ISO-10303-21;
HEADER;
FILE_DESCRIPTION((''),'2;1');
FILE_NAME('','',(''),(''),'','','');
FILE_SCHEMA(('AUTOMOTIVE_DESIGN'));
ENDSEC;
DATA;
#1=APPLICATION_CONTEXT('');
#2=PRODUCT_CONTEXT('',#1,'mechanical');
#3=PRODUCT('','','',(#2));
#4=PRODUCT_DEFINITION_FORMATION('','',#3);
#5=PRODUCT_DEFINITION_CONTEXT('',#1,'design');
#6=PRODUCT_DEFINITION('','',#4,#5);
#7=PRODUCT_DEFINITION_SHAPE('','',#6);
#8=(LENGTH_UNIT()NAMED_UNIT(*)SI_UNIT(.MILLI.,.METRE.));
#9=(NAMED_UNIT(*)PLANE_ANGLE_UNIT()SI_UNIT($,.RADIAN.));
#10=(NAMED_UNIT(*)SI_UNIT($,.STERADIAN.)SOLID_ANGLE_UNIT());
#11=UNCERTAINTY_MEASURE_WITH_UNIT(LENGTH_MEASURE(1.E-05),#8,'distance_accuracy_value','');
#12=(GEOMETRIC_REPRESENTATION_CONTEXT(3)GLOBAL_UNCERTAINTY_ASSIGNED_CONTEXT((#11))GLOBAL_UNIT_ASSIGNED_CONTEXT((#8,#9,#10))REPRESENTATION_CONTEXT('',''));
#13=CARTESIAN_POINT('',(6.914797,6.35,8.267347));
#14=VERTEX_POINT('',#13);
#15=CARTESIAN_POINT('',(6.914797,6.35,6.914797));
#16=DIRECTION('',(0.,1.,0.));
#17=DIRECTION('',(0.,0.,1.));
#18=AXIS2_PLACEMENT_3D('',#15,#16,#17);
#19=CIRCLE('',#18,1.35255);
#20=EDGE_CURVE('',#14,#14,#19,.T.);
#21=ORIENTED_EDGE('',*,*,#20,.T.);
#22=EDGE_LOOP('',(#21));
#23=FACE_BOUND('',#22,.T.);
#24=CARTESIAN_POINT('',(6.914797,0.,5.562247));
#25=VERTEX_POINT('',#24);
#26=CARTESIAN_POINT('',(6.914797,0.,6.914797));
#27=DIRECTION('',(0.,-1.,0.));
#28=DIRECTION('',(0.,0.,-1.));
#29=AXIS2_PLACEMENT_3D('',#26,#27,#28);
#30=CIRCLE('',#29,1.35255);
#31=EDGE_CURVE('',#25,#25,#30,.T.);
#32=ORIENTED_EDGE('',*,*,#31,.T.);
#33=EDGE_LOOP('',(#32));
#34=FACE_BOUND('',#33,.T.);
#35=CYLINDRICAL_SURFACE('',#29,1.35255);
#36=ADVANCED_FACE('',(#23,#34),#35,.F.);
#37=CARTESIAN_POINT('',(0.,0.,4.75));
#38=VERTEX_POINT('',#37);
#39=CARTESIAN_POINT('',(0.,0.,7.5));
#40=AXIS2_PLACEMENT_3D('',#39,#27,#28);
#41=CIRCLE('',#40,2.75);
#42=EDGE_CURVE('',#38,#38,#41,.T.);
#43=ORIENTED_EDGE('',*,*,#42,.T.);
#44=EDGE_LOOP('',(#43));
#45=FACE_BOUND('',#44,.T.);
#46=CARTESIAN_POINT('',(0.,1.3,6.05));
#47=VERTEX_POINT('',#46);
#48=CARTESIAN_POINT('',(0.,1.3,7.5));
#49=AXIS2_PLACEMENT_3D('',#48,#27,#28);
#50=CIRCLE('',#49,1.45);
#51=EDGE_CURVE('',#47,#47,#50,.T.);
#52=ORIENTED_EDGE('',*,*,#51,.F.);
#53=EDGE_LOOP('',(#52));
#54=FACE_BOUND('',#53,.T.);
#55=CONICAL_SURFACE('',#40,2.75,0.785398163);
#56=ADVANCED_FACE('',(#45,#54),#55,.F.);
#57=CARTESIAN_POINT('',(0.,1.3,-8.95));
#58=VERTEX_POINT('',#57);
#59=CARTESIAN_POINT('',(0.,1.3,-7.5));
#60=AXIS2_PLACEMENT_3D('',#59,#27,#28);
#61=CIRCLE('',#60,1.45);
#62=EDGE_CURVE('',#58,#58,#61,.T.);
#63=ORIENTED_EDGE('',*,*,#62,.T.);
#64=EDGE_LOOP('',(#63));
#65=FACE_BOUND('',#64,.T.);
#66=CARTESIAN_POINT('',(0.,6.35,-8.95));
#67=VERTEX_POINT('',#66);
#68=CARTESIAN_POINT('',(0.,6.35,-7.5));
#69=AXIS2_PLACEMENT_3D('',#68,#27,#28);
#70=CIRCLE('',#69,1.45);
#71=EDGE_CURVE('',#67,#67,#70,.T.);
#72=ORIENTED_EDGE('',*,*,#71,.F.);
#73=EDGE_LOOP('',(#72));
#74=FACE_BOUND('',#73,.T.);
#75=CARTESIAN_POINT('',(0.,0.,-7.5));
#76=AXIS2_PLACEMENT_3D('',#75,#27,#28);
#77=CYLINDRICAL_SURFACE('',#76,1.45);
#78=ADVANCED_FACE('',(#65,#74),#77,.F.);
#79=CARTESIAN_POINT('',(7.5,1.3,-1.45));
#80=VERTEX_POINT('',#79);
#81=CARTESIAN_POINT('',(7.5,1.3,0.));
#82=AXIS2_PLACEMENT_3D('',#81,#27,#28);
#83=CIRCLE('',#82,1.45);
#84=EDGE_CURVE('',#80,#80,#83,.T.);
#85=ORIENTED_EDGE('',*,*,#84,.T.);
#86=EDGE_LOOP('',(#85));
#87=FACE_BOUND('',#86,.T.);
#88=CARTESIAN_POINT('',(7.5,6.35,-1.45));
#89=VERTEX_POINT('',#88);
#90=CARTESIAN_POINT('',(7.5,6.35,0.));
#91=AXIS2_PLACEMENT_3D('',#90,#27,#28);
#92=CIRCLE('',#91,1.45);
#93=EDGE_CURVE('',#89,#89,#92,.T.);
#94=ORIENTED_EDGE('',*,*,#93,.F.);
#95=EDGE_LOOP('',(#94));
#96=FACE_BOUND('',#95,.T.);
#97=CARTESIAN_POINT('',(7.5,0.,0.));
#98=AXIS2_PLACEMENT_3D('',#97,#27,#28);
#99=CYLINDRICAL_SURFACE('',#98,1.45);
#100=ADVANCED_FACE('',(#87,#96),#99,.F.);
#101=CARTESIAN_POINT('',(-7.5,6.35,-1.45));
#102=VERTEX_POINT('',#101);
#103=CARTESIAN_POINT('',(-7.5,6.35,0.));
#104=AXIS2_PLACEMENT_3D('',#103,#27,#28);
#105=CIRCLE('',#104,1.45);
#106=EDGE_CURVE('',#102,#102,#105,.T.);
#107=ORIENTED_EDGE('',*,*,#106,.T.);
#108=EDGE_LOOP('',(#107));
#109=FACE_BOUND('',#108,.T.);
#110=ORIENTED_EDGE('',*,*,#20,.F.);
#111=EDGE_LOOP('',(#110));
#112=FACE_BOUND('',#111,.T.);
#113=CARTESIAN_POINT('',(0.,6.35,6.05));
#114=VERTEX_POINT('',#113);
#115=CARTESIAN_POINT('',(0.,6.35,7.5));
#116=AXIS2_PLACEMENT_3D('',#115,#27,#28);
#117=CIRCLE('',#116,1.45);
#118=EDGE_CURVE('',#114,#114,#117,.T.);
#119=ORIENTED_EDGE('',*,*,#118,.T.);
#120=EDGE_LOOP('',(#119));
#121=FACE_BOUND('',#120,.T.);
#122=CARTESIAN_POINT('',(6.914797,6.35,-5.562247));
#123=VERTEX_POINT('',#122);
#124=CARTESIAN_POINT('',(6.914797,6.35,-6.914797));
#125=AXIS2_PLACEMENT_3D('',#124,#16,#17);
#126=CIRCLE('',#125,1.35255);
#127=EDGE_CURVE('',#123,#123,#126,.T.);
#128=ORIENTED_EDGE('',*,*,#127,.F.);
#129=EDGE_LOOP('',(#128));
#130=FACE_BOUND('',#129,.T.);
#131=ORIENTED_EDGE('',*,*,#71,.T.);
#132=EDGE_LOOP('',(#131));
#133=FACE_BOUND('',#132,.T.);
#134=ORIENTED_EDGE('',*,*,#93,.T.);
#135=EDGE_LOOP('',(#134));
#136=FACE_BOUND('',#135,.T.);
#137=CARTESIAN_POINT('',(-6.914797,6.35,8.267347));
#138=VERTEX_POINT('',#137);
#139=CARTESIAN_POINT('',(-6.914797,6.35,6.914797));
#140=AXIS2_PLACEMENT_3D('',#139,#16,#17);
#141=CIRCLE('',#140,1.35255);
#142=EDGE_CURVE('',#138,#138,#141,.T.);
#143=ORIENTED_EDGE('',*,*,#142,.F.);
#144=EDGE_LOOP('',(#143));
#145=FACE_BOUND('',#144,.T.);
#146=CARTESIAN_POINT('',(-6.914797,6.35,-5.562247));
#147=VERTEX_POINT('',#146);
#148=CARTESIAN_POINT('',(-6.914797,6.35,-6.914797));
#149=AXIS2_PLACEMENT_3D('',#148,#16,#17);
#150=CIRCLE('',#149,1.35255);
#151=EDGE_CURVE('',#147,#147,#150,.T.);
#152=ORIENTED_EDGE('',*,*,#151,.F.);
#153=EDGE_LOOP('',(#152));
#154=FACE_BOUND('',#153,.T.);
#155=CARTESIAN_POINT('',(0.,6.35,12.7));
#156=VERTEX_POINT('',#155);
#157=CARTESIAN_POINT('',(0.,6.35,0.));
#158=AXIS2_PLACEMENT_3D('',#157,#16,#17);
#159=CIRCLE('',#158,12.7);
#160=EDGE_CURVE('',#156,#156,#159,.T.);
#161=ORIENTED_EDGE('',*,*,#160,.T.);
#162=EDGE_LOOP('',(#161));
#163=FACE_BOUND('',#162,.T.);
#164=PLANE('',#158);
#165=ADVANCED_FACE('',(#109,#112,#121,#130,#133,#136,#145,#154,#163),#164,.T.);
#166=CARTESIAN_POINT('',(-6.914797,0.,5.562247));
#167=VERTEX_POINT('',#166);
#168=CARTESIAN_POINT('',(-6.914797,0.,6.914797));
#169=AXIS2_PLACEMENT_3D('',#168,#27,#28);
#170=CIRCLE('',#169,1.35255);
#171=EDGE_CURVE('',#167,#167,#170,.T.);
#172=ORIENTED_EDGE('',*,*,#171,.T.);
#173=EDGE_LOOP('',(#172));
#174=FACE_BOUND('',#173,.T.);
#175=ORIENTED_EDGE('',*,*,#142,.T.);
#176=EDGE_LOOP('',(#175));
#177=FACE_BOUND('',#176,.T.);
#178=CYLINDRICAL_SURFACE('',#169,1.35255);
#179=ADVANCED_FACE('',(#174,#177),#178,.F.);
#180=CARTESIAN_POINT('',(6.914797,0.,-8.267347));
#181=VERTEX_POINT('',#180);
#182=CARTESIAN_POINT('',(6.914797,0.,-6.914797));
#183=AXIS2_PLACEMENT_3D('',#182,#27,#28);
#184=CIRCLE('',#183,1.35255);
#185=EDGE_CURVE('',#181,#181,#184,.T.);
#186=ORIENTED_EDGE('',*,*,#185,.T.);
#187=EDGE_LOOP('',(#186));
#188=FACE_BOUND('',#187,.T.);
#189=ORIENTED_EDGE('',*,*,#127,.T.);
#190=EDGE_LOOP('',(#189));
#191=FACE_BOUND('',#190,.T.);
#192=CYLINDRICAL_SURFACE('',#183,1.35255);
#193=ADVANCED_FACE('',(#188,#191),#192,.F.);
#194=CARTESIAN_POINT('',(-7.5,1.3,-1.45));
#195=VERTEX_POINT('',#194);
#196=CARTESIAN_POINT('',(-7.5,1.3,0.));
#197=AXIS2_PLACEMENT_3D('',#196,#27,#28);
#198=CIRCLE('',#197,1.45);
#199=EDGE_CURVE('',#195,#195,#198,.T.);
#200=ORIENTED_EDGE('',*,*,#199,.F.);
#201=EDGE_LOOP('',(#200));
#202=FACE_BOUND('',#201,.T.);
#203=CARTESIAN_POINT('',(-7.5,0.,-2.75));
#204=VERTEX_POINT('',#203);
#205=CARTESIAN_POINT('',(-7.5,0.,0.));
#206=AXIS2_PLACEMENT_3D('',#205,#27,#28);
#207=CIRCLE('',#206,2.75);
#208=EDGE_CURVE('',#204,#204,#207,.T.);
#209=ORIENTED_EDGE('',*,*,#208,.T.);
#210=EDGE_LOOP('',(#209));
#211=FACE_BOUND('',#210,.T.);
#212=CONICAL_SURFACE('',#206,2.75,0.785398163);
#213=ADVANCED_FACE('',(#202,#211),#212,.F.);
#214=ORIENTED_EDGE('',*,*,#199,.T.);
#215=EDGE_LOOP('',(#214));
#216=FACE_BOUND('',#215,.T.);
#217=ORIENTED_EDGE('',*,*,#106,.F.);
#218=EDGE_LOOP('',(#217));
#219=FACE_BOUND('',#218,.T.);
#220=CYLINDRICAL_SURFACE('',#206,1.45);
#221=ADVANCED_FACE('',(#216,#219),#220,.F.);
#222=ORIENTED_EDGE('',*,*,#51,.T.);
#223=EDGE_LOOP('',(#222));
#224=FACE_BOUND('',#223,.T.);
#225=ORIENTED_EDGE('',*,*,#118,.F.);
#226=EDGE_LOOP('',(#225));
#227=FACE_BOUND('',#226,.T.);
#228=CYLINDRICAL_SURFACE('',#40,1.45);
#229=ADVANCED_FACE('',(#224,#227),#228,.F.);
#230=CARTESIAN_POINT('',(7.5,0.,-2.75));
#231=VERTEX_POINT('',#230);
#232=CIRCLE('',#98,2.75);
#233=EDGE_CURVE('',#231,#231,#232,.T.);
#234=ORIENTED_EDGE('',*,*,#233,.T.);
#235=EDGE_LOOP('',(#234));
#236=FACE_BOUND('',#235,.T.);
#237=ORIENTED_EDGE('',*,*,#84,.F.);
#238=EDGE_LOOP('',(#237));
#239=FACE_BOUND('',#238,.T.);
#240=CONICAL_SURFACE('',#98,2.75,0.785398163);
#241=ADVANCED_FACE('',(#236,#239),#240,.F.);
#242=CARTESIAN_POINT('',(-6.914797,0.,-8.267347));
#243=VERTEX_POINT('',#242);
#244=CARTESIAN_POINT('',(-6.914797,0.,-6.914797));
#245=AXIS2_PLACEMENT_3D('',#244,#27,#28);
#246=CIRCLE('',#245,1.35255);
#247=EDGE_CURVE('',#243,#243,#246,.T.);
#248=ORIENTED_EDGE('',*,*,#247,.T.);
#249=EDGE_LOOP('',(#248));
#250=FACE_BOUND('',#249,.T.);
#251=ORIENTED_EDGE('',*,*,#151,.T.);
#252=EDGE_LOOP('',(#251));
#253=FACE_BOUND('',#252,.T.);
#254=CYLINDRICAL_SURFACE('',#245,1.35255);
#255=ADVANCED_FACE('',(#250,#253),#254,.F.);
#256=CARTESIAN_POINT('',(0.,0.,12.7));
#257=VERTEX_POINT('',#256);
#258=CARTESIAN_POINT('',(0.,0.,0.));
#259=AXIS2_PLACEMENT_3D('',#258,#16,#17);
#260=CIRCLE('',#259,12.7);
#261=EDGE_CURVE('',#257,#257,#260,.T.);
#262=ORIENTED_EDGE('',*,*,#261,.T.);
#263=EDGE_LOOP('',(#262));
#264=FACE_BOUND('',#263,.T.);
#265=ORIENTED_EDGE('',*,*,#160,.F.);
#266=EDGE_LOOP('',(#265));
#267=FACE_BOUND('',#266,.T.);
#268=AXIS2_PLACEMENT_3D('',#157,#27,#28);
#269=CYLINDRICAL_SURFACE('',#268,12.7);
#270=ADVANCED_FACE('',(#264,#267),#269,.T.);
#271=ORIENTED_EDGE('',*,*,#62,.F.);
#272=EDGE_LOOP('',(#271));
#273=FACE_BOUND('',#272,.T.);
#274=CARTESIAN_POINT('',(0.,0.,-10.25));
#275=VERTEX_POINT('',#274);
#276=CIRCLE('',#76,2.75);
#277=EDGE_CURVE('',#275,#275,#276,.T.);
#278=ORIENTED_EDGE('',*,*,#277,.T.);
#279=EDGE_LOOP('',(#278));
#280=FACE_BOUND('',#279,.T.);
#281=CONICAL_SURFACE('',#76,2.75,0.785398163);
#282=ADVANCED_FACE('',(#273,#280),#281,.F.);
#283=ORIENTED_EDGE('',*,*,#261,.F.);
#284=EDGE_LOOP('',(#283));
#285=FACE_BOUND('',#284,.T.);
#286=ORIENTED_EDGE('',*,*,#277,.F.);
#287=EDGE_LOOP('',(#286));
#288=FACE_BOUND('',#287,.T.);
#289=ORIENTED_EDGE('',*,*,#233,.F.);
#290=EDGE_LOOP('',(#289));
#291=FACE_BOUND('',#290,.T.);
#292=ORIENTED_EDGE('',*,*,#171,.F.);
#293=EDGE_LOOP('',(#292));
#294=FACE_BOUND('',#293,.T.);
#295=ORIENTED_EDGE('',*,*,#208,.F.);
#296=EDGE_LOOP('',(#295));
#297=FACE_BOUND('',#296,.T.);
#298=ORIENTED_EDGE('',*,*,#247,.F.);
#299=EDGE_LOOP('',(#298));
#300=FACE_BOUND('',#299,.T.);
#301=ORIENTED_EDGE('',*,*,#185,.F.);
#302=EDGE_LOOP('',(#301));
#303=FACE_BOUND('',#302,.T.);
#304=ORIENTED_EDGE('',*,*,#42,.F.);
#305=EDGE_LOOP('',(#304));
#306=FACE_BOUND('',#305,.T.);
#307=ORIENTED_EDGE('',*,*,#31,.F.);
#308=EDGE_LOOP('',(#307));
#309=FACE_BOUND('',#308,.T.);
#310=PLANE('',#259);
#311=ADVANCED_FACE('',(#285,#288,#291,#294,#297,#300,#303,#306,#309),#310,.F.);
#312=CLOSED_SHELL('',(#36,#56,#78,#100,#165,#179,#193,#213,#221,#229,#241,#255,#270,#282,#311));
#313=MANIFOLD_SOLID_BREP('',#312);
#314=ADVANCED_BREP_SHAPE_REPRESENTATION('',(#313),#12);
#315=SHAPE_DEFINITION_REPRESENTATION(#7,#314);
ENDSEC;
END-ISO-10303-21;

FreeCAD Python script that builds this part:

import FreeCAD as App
import Part
import Sketcher

V = App.Vector
Q = App.Units.Quantity

doc = App.newDocument("Part")
params = doc.addObject("Spreadsheet::Sheet", "Params")
for row, (alias, value) in enumerate([
    ("sketch1_diameter", "1 in"),
    ("pad1_length", "0.25 in"),
    ("hole_diameter", "2.9 mm"),
    ("hole_csink_diameter", "5.5 mm"),
    ("hole2_diameter", "0.1065 in"),
    ("hole2_depth", "0.3696 in"),
], start=1):
    params.set(f"A{row}", alias)
    params.set(f"B{row}", "=" + value)
    params.setAlias(f"B{row}", alias)

body = doc.addObject("PartDesign::Body", "Body")

# Sketch on XZ plane
sketch1 = body.newObject("Sketcher::SketchObject", "Sketch")
sketch1.AttachmentSupport = (doc.getObject("XZ_Plane"), [""])
sketch1.MapMode = "FlatFace"
sketch1.addGeometry(Part.Circle(V(0, 0, 0), V(0, 0, 1), 12.7), False)
sketch1.addConstraint([
    Sketcher.Constraint("Coincident", 0, 3, -1, 1),
    Sketcher.Constraint("Diameter", 0, Q("1 in")),
])
sketch1.setExpression("Constraints[1]", "Params.sketch1_diameter")
pad1 = body.newObject("PartDesign::Pad", "Pad")
pad1.Profile = sketch1
pad1.setExpression("Length", "Params.pad1_length")
pad1.Reversed = True

# Sketch on XZ plane
sketch2 = body.newObject("Sketcher::SketchObject", "Sketch001")
sketch2.AttachmentSupport = (doc.getObject("XZ_Plane"), [""])
sketch2.MapMode = "FlatFace"
sketch2.addGeometry([
    Part.Circle(V(-7.5, 0, 0), V(0, 0, 1), 1.45),
    Part.Circle(V(7.5, 0, 0), V(0, 0, 1), 1.45),
    Part.Circle(V(0, 7.5, 0), V(0, 0, 1), 1.45),
    Part.Circle(V(0, -7.5, 0), V(0, 0, 1), 1.45),
], False)
sketch2.addConstraint([
    Sketcher.Constraint("Equal", 0, 1),
    Sketcher.Constraint("Equal", 1, 2),
    Sketcher.Constraint("Equal", 2, 3),
    Sketcher.Constraint("Symmetric", 0, 3, 1, 3, -1, 1),
    Sketcher.Constraint("Symmetric", 2, 3, 3, 3, -1, 1),
    Sketcher.Constraint("PointOnObject", 0, 3, -1),
    Sketcher.Constraint("PointOnObject", 2, 3, -2),
    Sketcher.Constraint("Diameter", 0, Q("2.9 mm")),
    Sketcher.Constraint("DistanceX", 0, 3, -1, 1, Q("7.5 mm")),
    Sketcher.Constraint("DistanceY", -1, 1, 2, 3, Q("7.5 mm")),
])
doc.recompute()
hole = body.newObject("PartDesign::Hole", "Hole")
hole.Profile = sketch2
hole.ThreadType = "None"
hole.setExpression("Diameter", "Params.hole_diameter")
hole.DepthType = "ThroughAll"
hole.HoleCutType = "Countersink"
hole.setExpression("HoleCutDiameter", "Params.hole_csink_diameter")
hole.HoleCutCountersinkAngle = 90

# Sketch on XZ plane
sketch3 = body.newObject("Sketcher::SketchObject", "Sketch002")
sketch3.AttachmentSupport = (doc.getObject("XZ_Plane"), [""])
sketch3.MapMode = "FlatFace"
sketch3.addGeometry([
    Part.Circle(V(-6.914797, 6.914797, 0), V(0, 0, 1), 1.35255),
    Part.Circle(V(6.914797, 6.914797, 0), V(0, 0, 1), 1.35255),
    Part.Circle(V(6.914797, -6.914797, 0), V(0, 0, 1), 1.35255),
    Part.Circle(V(-6.914797, -6.914797, 0), V(0, 0, 1), 1.35255),
], False)
sketch3.addConstraint([
    Sketcher.Constraint("Equal", 0, 1),
    Sketcher.Constraint("Equal", 1, 2),
    Sketcher.Constraint("Equal", 2, 3),
    Sketcher.Constraint("Symmetric", 0, 3, 2, 3, -1, 1),
    Sketcher.Constraint("Symmetric", 1, 3, 3, 3, -1, 1),
    Sketcher.Constraint("Symmetric", 0, 3, 1, 3, -2),
    Sketcher.Constraint("Diameter", 0, Q("0.1065 in")),
    Sketcher.Constraint("DistanceX", 0, 3, -1, 1, Q("6.914797 mm")),
    Sketcher.Constraint("DistanceY", -1, 1, 0, 3, Q("6.914797 mm")),
])
doc.recompute()
hole2 = body.newObject("PartDesign::Hole", "Hole001")
hole2.Profile = sketch3
hole2.ThreadType = "None"
hole2.setExpression("Diameter", "Params.hole2_diameter")
hole2.DepthType = "Dimension"
hole2.setExpression("Depth", "Params.hole2_depth")
hole2.DrillPoint = "Angled"
hole2.DrillPointAngle = 118

doc.recompute()
